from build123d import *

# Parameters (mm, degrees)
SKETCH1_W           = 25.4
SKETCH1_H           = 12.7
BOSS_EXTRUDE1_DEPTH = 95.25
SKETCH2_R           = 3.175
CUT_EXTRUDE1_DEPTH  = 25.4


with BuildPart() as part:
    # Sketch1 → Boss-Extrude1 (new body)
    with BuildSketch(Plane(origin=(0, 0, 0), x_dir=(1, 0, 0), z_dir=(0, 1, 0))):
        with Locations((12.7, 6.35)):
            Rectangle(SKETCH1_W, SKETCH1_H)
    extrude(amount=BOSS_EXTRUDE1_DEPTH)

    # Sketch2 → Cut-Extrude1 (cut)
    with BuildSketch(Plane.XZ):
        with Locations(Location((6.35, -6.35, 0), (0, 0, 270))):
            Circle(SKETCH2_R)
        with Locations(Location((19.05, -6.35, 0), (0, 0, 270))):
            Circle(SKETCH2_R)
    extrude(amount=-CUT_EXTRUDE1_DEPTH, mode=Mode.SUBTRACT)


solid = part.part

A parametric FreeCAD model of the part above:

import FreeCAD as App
import Part
import Sketcher

V = App.Vector
Q = App.Units.Quantity


def add_polygon(sketch, points):
    """Adds a closed chain of lines whose ends are joined by coincident constraints."""
    first, n = sketch.GeometryCount, len(points)
    for a, b in zip(points, points[1:] + points[:1]):
        sketch.addGeometry(Part.LineSegment(App.Vector(*a, 0), App.Vector(*b, 0)), False)
    for i in range(n):
        sketch.addConstraint(Sketcher.Constraint("Coincident", first + i, 2, first + (i + 1) % n, 1))

doc = App.newDocument("Part")
body = doc.addObject("PartDesign::Body", "Body")

sketch1 = body.newObject("Sketcher::SketchObject", "Sketch")
sketch1.AttachmentSupport = (doc.getObject("XZ_Plane"), [""])
sketch1.MapMode = "FlatFace"
add_polygon(sketch1, [(0, -12.7), (0, 0), (25.4, 0), (25.4, -12.7)])
sketch1.addConstraint([
    Sketcher.Constraint("Vertical", 0),
    Sketcher.Constraint("Horizontal", 1),
    Sketcher.Constraint("Vertical", 2),
    Sketcher.Constraint("Horizontal", 3),
    Sketcher.Constraint("Coincident", 0, 2, -1, 1),
    Sketcher.Constraint("DistanceX", 1, 1, 1, 2, Q("1 in")),
    Sketcher.Constraint("DistanceY", 0, 1, 0, 2, Q("0.5 in")),
])
pad1 = body.newObject("PartDesign::Pad", "Pad")
pad1.Profile = sketch1
pad1.Length = Q("3.75 in")
pad1.Reversed = True

sketch2 = body.newObject("Sketcher::SketchObject", "Sketch001")
sketch2.AttachmentSupport = (doc.getObject("XZ_Plane"), [""])
sketch2.MapMode = "FlatFace"
sketch2.addGeometry([
    Part.Circle(V(6.35, -6.35, 0), V(0, 0, 1), 3.175),
    Part.Circle(V(19.05, -6.35, 0), V(0, 0, 1), 3.175),
], False)
sketch2.addConstraint([
    Sketcher.Constraint("Equal", 0, 1),
    Sketcher.Constraint("Horizontal", 0, 3, 1, 3),
    Sketcher.Constraint("Diameter", 0, Q("0.25 in")),
    Sketcher.Constraint("DistanceX", 0, 3, 1, 3, Q("0.5 in")),
    Sketcher.Constraint("DistanceX", -1, 1, 0, 3, Q("0.25 in")),
    Sketcher.Constraint("DistanceY", 0, 3, -1, 1, Q("0.25 in")),
])
pocket1 = body.newObject("PartDesign::Pocket", "Pocket")
pocket1.Profile = sketch2
pocket1.Length = Q("1 in")

doc.recompute()
